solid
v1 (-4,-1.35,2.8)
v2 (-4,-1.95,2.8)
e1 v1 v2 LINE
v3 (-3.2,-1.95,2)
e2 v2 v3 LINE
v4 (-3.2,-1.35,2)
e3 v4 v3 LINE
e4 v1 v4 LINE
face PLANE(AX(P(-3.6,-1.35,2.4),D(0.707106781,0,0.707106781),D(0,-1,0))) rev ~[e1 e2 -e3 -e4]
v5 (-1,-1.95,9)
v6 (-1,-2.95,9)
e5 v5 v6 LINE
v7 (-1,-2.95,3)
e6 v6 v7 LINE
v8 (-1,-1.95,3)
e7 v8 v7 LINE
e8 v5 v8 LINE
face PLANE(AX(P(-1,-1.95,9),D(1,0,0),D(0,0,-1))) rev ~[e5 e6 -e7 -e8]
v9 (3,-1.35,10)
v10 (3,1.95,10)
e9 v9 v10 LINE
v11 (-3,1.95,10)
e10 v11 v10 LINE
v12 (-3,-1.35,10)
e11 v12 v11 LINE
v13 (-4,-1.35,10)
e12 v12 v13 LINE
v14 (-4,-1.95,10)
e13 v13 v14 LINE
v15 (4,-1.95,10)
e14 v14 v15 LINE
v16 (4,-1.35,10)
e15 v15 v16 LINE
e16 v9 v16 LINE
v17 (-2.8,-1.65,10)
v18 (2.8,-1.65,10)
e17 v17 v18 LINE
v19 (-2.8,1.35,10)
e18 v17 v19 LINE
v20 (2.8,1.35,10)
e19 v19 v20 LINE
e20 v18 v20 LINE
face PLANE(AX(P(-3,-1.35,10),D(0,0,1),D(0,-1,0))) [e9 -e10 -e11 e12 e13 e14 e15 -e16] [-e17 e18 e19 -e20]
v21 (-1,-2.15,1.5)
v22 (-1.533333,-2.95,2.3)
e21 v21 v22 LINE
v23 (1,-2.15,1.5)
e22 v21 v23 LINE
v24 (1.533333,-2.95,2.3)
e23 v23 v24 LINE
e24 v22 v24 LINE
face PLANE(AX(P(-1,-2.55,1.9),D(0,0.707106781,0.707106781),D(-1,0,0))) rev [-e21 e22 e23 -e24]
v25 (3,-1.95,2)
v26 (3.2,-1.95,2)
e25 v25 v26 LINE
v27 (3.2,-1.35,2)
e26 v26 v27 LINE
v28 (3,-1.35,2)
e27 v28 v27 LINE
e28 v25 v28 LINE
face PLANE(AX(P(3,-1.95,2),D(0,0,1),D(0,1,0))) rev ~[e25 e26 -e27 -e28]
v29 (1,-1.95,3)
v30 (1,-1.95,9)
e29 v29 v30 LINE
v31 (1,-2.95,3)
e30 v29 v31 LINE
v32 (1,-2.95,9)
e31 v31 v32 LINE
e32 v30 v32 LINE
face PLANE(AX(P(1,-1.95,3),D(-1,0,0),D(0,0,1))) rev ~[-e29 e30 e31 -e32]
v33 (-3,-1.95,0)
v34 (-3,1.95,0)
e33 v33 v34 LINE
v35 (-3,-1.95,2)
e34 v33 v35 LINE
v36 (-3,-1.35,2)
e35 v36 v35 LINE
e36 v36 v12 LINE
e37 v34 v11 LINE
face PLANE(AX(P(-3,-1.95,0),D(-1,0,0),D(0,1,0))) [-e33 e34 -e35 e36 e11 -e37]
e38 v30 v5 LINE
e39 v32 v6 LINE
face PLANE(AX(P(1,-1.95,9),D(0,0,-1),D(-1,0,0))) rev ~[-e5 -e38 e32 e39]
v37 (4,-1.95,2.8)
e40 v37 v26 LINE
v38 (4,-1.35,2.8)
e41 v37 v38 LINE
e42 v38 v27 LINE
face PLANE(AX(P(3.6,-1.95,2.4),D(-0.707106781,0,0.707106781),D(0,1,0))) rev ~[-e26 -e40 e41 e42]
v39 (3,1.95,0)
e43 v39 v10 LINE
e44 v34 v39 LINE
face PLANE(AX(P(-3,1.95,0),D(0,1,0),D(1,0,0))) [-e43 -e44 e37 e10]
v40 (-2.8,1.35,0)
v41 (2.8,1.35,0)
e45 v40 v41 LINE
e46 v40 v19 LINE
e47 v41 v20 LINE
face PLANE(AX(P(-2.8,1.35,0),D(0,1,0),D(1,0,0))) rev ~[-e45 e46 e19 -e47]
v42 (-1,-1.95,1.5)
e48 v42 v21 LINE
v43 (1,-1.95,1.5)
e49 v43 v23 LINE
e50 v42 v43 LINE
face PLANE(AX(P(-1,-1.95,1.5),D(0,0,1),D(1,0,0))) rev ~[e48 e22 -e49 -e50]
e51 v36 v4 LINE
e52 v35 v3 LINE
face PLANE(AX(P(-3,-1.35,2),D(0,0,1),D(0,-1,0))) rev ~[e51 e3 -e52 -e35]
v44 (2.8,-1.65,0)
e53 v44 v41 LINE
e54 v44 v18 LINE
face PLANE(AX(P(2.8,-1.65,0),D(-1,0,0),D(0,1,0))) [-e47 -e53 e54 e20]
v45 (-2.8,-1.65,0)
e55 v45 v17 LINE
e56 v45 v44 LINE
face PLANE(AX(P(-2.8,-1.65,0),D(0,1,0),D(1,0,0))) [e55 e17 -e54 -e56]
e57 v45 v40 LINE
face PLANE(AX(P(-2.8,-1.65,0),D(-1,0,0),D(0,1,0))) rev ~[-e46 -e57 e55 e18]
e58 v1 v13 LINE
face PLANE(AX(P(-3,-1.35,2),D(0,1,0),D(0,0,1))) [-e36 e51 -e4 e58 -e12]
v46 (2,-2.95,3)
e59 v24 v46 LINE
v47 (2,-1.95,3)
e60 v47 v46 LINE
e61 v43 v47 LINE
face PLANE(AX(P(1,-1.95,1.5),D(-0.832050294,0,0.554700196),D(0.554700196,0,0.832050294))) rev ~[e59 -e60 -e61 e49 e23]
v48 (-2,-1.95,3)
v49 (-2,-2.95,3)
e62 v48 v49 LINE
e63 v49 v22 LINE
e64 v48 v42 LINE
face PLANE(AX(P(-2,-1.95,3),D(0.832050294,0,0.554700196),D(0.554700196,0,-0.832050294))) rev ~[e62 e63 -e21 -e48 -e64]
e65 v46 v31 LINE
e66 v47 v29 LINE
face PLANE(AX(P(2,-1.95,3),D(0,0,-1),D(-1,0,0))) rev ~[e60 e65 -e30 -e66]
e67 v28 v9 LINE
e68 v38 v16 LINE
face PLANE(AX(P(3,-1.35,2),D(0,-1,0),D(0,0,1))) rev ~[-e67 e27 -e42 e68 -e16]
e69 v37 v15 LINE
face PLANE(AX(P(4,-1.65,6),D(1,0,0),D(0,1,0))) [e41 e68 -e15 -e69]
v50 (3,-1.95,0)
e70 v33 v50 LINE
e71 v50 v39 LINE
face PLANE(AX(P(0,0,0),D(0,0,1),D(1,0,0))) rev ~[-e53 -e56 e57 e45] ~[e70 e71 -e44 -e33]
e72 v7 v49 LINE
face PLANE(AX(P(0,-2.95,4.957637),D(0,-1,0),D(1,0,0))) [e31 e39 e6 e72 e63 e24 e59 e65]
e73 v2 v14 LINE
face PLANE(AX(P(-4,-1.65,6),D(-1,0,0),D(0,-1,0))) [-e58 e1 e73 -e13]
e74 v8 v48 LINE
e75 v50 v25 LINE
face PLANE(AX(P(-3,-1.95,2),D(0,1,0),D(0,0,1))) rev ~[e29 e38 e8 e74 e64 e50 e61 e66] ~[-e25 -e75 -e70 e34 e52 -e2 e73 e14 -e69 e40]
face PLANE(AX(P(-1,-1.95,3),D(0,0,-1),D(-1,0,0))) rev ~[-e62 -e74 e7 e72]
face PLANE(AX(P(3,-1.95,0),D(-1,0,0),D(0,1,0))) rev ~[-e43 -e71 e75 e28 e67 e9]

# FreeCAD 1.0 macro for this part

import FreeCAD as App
import Part
import Sketcher

V = App.Vector
Q = App.Units.Quantity


def edges_at(feature, points):
    """Names of the edges that pass closest to the given points."""
    edges = feature.Shape.Edges
    near = lambda p: min(range(len(edges)), key=lambda i: edges[i].distToShape(Part.Vertex(*p))[0])
    return sorted({f"Edge{near(p) + 1}" for p in points})


def add_polygon(sketch, points):
    """Adds a closed chain of lines whose ends are joined by coincident constraints."""
    first, n = sketch.GeometryCount, len(points)
    for a, b in zip(points, points[1:] + points[:1]):
        sketch.addGeometry(Part.LineSegment(App.Vector(*a, 0), App.Vector(*b, 0)), False)
    for i in range(n):
        sketch.addConstraint(Sketcher.Constraint("Coincident", first + i, 2, first + (i + 1) % n, 1))

doc = App.newDocument("Part")
body = doc.addObject("PartDesign::Body", "Body")

sketch1 = body.newObject("Sketcher::SketchObject", "Sketch")
sketch1.AttachmentSupport = (doc.getObject("XY_Plane"), [""])
sketch1.MapMode = "FlatFace"
add_polygon(sketch1, [(-3, 1.9), (-3, -1.9), (3, -1.9), (3, 1.9)])
add_polygon(sketch1, [(2.8, -1.6), (-2.8, -1.6), (-2.8, 1.4), (2.8, 1.4)])
sketch1.addConstraint([
    Sketcher.Constraint("Vertical", 0),
    Sketcher.Constraint("Horizontal", 1),
    Sketcher.Constraint("Vertical", 2),
    Sketcher.Constraint("Horizontal", 3),
    Sketcher.Constraint("Horizontal", 4),
    Sketcher.Constraint("Vertical", 5),
    Sketcher.Constraint("Horizontal", 6),
    Sketcher.Constraint("Vertical", 7),
    Sketcher.Constraint("Symmetric", 0, 2, 2, 2, -1, 1),
    Sketcher.Constraint("DistanceX", 1, 1, 1, 2, Q("6 mm")),
    Sketcher.Constraint("DistanceY", 5, 1, 5, 2, Q("3 mm")),
    Sketcher.Constraint("DistanceX", 4, 2, 4, 1, Q("5.6 mm")),
    Sketcher.Constraint("DistanceY", 0, 2, 0, 1, Q("3.9 mm")),
    Sketcher.Constraint("DistanceX", 4, 2, -1, 1, Q("2.8 mm")),
    Sketcher.Constraint("DistanceY", 0, 2, 4, 2, Q("0.3 mm")),
])
pad1 = body.newObject("PartDesign::Pad", "Pad")
pad1.Profile = sketch1
pad1.Length = 10

sketch2 = body.newObject("Sketcher::SketchObject", "Sketch001")
sketch2.AttachmentSupport = (doc.getObject("XZ_Plane"), [""])
sketch2.MapMode = "FlatFace"
sketch2.AttachmentOffset = App.Placement(V(0, 0, 1.95), App.Rotation())
add_polygon(sketch2, [(1, 9), (-1, 9), (-1, 3), (-2, 3), (-1, 1.5), (1, 1.5), (2, 3), (1, 3)])
sketch2.addConstraint([
    Sketcher.Constraint("Horizontal", 0),
    Sketcher.Constraint("Vertical", 1),
    Sketcher.Constraint("Horizontal", 2),
    Sketcher.Constraint("Horizontal", 4),
    Sketcher.Constraint("Horizontal", 6),
    Sketcher.Constraint("Vertical", 7),
    Sketcher.Constraint("Symmetric", 2, 2, 5, 2, -2),
    Sketcher.Constraint("Vertical", 1, 2, 3, 2),
    Sketcher.Constraint("Vertical", 4, 2, 6, 2),
    Sketcher.Constraint("Equal", 2, 6),
    Sketcher.Constraint("DistanceX", 0, 2, 0, 1, Q("2 mm")),
    Sketcher.Constraint("DistanceX", 2, 2, 2, 1, Q("1 mm")),
    Sketcher.Constraint("DistanceY", 1, 2, 1, 1, Q("6 mm")),
    Sketcher.Constraint("DistanceY", -1, 1, 0, 2, Q("9 mm")),
    Sketcher.Constraint("DistanceY", -1, 1, 3, 2, Q("1.5 mm")),
])
pad2 = body.newObject("PartDesign::Pad", "Pad001")
pad2.Profile = sketch2
pad2.Length = 1
doc.recompute()

chamfer = body.newObject("PartDesign::Chamfer", "Chamfer")
chamfer.Base = (pad2, edges_at(pad2, [(0, -2.95, 1.5)]))
chamfer.Size = 0.8

sketch3 = body.newObject("Sketcher::SketchObject", "Sketch002")
sketch3.AttachmentSupport = (doc.getObject("YZ_Plane"), [""])
sketch3.MapMode = "FlatFace"
sketch3.AttachmentOffset = App.Placement(V(0, 0, 3), App.Rotation())
add_polygon(sketch3, [(-1.9, 10), (-1.9, 2), (-1.4, 2), (-1.4, 10)])
sketch3.addConstraint([
    Sketcher.Constraint("Vertical", 0),
    Sketcher.Constraint("Horizontal", 1),
    Sketcher.Constraint("Vertical", 2),
    Sketcher.Constraint("Horizontal", 3),
    Sketcher.Constraint("DistanceY", 0, 2, 0, 1, Q("8 mm")),
    Sketcher.Constraint("DistanceX", 1, 1, 1, 2, Q("0.6 mm")),
    Sketcher.Constraint("DistanceY", -1, 1, 0, 2, Q("2 mm")),
    Sketcher.Constraint("DistanceX", 0, 2, -1, 1, Q("1.95 mm")),
])
pad3 = body.newObject("PartDesign::Pad", "Pad002")
pad3.Profile = sketch3
pad3.Length = 1
doc.recompute()

chamfer2 = body.newObject("PartDesign::Chamfer", "Chamfer001")
chamfer2.Base = (pad3, edges_at(pad3, [(4, -1.65, 2)]))
chamfer2.Size = 0.8

sketch4 = body.newObject("Sketcher::SketchObject", "Sketch003")
sketch4.AttachmentSupport = (doc.getObject("YZ_Plane"), [""])
sketch4.MapMode = "FlatFace"
sketch4.AttachmentOffset = App.Placement(V(0, 0, -3), App.Rotation())
add_polygon(sketch4, [(-1.4, 10), (-1.4, 2), (-1.9, 2), (-1.9, 10)])
sketch4.addConstraint([
    Sketcher.Constraint("Vertical", 0),
    Sketcher.Constraint("Horizontal", 1),
    Sketcher.Constraint("Vertical", 2),
    Sketcher.Constraint("Horizontal", 3),
    Sketcher.Constraint("DistanceY", 0, 2, 0, 1, Q("8 mm")),
    Sketcher.Constraint("DistanceX", 1, 2, 1, 1, Q("0.6 mm")),
    Sketcher.Constraint("DistanceY", -1, 1, 0, 2, Q("2 mm")),
    Sketcher.Constraint("DistanceX", 0, 2, -1, 1, Q("1.35 mm")),
])
pad4 = body.newObject("PartDesign::Pad", "Pad003")
pad4.Profile = sketch4
pad4.Length = 1
pad4.Reversed = True
doc.recompute()

chamfer3 = body.newObject("PartDesign::Chamfer", "Chamfer002")
chamfer3.Base = (pad4, edges_at(pad4, [(-4, -1.65, 2)]))
chamfer3.Size = 0.8

doc.recompute()
